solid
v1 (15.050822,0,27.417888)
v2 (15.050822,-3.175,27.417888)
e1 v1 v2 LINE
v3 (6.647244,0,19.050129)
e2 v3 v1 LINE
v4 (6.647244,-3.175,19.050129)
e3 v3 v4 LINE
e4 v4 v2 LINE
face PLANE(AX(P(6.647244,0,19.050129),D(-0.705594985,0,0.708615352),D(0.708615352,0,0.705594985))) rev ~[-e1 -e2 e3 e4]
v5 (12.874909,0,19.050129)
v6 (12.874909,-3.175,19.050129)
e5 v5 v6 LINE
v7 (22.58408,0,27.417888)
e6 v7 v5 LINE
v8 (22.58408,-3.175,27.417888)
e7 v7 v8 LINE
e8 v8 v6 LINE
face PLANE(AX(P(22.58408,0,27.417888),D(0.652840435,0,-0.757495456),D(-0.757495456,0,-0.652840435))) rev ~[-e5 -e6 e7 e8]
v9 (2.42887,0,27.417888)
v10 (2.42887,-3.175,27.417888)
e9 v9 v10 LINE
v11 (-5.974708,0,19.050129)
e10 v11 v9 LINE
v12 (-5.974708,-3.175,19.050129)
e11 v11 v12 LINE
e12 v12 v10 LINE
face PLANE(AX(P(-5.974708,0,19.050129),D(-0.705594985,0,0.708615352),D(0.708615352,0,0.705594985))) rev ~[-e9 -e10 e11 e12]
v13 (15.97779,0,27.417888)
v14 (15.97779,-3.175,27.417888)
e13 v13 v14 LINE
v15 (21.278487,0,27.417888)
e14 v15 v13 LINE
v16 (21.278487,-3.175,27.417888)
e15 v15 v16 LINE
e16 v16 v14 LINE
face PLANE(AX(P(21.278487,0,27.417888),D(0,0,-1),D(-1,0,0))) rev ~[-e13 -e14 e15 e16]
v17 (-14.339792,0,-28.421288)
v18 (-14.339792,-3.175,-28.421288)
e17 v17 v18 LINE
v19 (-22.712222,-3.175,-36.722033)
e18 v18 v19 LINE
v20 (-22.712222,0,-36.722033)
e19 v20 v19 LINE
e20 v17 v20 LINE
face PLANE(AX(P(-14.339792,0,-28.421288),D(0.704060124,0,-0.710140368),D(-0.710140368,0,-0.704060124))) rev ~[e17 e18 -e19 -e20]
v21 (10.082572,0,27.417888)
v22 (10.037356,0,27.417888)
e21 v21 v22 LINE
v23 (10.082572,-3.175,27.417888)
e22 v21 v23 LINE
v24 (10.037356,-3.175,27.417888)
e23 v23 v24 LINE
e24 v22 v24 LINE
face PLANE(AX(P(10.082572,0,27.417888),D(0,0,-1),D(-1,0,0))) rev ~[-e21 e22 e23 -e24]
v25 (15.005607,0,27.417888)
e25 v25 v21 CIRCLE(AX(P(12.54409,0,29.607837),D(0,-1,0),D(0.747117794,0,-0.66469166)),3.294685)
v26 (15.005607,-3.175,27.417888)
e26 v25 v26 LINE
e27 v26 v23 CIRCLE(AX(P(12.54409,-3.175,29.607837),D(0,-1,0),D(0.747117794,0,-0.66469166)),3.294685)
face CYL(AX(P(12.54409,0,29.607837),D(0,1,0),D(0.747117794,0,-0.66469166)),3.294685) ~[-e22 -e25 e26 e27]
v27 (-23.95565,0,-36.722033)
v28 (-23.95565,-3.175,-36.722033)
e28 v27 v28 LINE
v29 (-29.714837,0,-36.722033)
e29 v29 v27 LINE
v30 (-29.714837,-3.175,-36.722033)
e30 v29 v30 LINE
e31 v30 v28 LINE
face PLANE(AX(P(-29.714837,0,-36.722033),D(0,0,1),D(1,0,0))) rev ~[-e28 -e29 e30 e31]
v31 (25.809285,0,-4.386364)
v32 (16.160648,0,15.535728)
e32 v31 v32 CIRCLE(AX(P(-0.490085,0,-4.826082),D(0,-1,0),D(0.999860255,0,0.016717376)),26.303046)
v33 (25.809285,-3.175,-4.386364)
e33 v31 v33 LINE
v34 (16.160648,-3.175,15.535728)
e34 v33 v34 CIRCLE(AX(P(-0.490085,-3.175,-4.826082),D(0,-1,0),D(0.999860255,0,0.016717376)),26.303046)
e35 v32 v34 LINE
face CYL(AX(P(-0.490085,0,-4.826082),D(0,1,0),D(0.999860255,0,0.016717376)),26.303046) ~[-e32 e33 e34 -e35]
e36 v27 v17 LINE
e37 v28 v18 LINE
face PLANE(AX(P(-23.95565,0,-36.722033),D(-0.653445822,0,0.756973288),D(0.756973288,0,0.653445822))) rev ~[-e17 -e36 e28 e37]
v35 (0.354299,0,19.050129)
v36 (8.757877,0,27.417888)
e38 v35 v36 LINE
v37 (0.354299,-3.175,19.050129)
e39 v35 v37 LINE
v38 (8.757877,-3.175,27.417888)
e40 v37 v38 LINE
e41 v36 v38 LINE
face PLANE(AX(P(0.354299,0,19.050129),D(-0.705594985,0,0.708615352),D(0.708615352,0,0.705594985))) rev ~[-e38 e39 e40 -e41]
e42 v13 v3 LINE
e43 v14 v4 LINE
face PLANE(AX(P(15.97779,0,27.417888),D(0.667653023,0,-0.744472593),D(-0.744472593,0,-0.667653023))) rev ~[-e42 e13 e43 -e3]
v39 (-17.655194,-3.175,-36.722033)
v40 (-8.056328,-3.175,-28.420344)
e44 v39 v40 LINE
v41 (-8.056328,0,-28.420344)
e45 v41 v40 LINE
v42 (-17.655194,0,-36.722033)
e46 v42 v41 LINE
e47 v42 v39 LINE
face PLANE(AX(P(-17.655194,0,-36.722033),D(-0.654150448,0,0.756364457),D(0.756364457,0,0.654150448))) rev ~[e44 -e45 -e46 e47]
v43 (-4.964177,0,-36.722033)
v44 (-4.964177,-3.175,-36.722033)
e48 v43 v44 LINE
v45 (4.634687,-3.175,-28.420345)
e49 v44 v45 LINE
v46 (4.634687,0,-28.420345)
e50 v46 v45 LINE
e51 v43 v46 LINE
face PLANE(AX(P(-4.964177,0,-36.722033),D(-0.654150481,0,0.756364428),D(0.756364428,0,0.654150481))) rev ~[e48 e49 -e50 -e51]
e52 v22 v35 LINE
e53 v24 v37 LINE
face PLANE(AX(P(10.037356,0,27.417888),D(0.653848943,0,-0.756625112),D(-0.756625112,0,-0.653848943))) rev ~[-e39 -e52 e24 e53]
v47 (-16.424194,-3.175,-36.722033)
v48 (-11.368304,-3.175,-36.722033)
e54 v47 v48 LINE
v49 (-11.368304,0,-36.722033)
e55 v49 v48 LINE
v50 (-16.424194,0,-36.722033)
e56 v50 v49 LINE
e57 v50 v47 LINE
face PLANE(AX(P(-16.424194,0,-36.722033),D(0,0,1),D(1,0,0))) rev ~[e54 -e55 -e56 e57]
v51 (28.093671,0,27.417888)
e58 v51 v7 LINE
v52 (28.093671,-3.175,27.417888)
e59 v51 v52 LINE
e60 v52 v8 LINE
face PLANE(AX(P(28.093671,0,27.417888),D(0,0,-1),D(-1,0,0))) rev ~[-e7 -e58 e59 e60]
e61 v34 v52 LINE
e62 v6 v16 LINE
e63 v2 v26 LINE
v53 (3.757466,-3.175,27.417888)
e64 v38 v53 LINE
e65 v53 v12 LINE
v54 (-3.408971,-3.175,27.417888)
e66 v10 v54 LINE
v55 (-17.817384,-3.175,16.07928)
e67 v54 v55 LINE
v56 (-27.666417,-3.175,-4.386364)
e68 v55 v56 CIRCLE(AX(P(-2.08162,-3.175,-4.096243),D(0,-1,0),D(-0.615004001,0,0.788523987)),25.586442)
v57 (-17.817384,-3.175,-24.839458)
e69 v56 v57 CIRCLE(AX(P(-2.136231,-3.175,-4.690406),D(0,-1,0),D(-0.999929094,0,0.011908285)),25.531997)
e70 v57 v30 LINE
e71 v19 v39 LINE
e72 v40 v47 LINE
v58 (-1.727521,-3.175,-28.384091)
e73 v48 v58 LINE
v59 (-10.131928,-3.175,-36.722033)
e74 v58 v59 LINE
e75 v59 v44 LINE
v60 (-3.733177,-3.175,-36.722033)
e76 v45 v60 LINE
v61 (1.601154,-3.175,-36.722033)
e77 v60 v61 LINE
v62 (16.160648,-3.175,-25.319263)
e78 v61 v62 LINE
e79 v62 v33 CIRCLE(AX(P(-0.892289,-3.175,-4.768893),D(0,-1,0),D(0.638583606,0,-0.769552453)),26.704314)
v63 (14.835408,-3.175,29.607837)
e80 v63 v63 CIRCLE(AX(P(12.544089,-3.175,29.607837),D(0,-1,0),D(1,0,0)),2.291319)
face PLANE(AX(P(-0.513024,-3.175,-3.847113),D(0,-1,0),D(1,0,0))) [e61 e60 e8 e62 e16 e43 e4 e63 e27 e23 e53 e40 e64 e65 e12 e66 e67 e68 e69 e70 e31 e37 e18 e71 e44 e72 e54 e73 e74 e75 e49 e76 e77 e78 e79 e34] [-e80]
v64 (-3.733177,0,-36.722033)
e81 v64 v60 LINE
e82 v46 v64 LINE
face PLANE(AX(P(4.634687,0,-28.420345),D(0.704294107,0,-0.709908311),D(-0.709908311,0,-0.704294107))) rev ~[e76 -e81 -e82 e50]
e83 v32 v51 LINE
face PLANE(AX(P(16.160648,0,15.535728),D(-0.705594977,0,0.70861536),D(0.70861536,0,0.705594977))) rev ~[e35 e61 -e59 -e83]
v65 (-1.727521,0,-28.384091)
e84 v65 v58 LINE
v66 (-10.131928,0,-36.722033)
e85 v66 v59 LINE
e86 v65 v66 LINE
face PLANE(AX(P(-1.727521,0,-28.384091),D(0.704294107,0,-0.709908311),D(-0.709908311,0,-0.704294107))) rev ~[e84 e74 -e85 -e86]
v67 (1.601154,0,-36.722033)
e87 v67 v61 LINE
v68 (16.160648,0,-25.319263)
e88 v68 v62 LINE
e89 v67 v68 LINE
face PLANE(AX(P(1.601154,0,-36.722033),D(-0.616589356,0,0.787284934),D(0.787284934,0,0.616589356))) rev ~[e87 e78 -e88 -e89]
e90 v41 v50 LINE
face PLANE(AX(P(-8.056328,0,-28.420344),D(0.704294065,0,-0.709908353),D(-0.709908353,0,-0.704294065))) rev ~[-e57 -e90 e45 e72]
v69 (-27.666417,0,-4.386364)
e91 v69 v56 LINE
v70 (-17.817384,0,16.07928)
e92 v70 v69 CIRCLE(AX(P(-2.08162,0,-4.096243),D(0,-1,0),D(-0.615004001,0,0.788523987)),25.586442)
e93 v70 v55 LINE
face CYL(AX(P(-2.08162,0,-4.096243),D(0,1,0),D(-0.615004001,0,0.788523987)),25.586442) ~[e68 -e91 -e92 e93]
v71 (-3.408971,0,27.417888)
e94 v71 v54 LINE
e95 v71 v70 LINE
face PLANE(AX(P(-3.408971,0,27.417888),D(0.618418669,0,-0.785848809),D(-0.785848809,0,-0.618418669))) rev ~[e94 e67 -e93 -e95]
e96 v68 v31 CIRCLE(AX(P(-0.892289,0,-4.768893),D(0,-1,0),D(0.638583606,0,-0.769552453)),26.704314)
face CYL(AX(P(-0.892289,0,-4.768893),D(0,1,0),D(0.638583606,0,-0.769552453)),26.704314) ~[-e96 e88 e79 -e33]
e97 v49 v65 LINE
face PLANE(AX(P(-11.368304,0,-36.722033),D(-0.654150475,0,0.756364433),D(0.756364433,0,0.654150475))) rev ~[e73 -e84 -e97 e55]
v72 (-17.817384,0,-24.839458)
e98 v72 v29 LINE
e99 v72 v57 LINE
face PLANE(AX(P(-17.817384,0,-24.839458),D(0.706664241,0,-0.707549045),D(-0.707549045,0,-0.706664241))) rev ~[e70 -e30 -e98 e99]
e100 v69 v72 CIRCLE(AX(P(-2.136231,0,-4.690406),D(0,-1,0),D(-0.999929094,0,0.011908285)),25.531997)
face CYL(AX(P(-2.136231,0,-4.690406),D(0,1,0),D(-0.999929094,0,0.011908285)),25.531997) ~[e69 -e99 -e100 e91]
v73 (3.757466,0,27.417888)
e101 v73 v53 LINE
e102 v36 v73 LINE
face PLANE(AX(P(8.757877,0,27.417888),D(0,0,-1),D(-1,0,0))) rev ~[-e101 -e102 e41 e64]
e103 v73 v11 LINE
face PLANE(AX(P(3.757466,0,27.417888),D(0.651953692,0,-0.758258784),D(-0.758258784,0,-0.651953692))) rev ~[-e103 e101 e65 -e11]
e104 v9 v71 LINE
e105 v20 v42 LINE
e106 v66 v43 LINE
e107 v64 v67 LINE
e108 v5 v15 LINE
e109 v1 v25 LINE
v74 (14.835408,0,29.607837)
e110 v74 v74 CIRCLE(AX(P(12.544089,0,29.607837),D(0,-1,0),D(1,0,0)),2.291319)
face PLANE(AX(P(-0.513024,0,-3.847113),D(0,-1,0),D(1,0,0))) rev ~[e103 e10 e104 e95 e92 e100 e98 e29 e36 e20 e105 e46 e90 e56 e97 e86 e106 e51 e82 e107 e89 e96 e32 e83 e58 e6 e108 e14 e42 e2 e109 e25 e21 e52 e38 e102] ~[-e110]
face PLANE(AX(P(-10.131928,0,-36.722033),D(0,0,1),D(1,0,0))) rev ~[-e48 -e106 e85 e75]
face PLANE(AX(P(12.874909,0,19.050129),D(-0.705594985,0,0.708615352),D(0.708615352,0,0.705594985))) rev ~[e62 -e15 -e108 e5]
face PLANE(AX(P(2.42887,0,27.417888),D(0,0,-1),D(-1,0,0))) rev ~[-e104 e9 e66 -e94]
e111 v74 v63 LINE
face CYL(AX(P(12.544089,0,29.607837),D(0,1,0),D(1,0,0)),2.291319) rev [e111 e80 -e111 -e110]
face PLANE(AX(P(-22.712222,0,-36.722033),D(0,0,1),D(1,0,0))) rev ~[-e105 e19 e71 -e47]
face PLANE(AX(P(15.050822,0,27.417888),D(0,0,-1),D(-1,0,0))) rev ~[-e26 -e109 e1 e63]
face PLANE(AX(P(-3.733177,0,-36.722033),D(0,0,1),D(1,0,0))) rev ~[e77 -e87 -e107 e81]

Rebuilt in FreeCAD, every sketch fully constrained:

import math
import FreeCAD as App
import Part
import Sketcher
Q = App.Units.Quantity

doc = App.newDocument("Part")
body = doc.addObject("PartDesign::Body", "Body")

# Sketch on XZ plane
sketch1 = body.newObject("Sketcher::SketchObject", "Sketch")
sketch1.AttachmentSupport = (doc.getObject("XZ_Plane"), [""])
sketch1.MapMode = "FlatFace"
sketch1.addGeometry([
    Part.LineSegment(App.Vector(2.429, 27.418, 0), App.Vector(-3.409, 27.418, 0)),  # 0
    Part.LineSegment(App.Vector(-3.409, 27.418, 0), App.Vector(-17.817, 16.079, 0)),  # 1
    Part.ArcOfCircle(Part.Circle(App.Vector(-2.082, -4.096, 0), App.Vector(0, 0, 1), 25.586), math.radians(128), math.radians(181)),  # 2
    Part.ArcOfCircle(Part.Circle(App.Vector(-2.136, -4.69, 0), App.Vector(0, 0, 1), 25.532), math.radians(179), math.radians(232)),  # 3
    Part.LineSegment(App.Vector(-17.817, -24.839, 0), App.Vector(-29.715, -36.722, 0)),  # 4
    Part.LineSegment(App.Vector(-29.715, -36.722, 0), App.Vector(-23.956, -36.722, 0)),  # 5
    Part.LineSegment(App.Vector(-23.956, -36.722, 0), App.Vector(-14.34, -28.421, 0)),  # 6
    Part.LineSegment(App.Vector(-14.34, -28.421, 0), App.Vector(-22.712, -36.722, 0)),  # 7
    Part.LineSegment(App.Vector(-22.712, -36.722, 0), App.Vector(-17.655, -36.722, 0)),  # 8
    Part.LineSegment(App.Vector(-17.655, -36.722, 0), App.Vector(-8.056, -28.42, 0)),  # 9
    Part.LineSegment(App.Vector(-8.056, -28.42, 0), App.Vector(-16.424, -36.722, 0)),  # 10
    Part.LineSegment(App.Vector(-16.424, -36.722, 0), App.Vector(-11.368, -36.722, 0)),  # 11
    Part.LineSegment(App.Vector(-11.368, -36.722, 0), App.Vector(-1.728, -28.384, 0)),  # 12
    Part.LineSegment(App.Vector(-1.728, -28.384, 0), App.Vector(-10.132, -36.722, 0)),  # 13
    Part.LineSegment(App.Vector(-10.132, -36.722, 0), App.Vector(-4.964, -36.722, 0)),  # 14
    Part.LineSegment(App.Vector(-4.964, -36.722, 0), App.Vector(4.635, -28.42, 0)),  # 15
    Part.LineSegment(App.Vector(4.635, -28.42, 0), App.Vector(-3.733, -36.722, 0)),  # 16
    Part.LineSegment(App.Vector(-3.733, -36.722, 0), App.Vector(1.601, -36.722, 0)),  # 17
    Part.LineSegment(App.Vector(1.601, -36.722, 0), App.Vector(16.161, -25.319, 0)),  # 18
    Part.ArcOfCircle(Part.Circle(App.Vector(-0.892, -4.769, 0), App.Vector(0, 0, 1), 26.704), math.radians(-50), math.radians(1)),  # 19
    Part.ArcOfCircle(Part.Circle(App.Vector(-0.49, -4.826, 0), App.Vector(0, 0, 1), 26.303), math.radians(1), math.radians(51)),  # 20
    Part.LineSegment(App.Vector(16.161, 15.536, 0), App.Vector(28.094, 27.418, 0)),  # 21
    Part.LineSegment(App.Vector(28.094, 27.418, 0), App.Vector(22.584, 27.418, 0)),  # 22
    Part.LineSegment(App.Vector(22.584, 27.418, 0), App.Vector(12.875, 19.05, 0)),  # 23
    Part.LineSegment(App.Vector(12.875, 19.05, 0), App.Vector(21.278, 27.418, 0)),  # 24
    Part.LineSegment(App.Vector(21.278, 27.418, 0), App.Vector(15.978, 27.418, 0)),  # 25
    Part.LineSegment(App.Vector(15.978, 27.418, 0), App.Vector(6.647, 19.05, 0)),  # 26
    Part.LineSegment(App.Vector(6.647, 19.05, 0), App.Vector(15.051, 27.418, 0)),  # 27
    Part.LineSegment(App.Vector(15.051, 27.418, 0), App.Vector(15.006, 27.418, 0)),  # 28
    Part.ArcOfCircle(Part.Circle(App.Vector(12.544, 29.608, 0), App.Vector(0, 0, 1), 3.295), math.radians(-42), math.radians(222)),  # 29
    Part.LineSegment(App.Vector(10.083, 27.418, 0), App.Vector(10.037, 27.418, 0)),  # 30
    Part.LineSegment(App.Vector(10.037, 27.418, 0), App.Vector(0.354, 19.05, 0)),  # 31
    Part.LineSegment(App.Vector(0.354, 19.05, 0), App.Vector(8.758, 27.418, 0)),  # 32
    Part.LineSegment(App.Vector(8.758, 27.418, 0), App.Vector(3.757, 27.418, 0)),  # 33
    Part.LineSegment(App.Vector(3.757, 27.418, 0), App.Vector(-5.975, 19.05, 0)),  # 34
    Part.LineSegment(App.Vector(-5.975, 19.05, 0), App.Vector(2.429, 27.418, 0)),  # 35
    Part.Circle(App.Vector(12.544, 29.608, 0), App.Vector(0, 0, 1), 2.291),  # 36
], False)
sketch1.addConstraint([
    Sketcher.Constraint("Coincident", 0, 2, 1, 1),
    Sketcher.Constraint("Coincident", 1, 2, 2, 1),
    Sketcher.Constraint("Coincident", 2, 2, 3, 1),
    Sketcher.Constraint("Coincident", 3, 2, 4, 1),
    Sketcher.Constraint("Coincident", 4, 2, 5, 1),
    Sketcher.Constraint("Coincident", 5, 2, 6, 1),
    Sketcher.Constraint("Coincident", 6, 2, 7, 1),
    Sketcher.Constraint("Coincident", 7, 2, 8, 1),
    Sketcher.Constraint("Coincident", 8, 2, 9, 1),
    Sketcher.Constraint("Coincident", 9, 2, 10, 1),
    Sketcher.Constraint("Coincident", 10, 2, 11, 1),
    Sketcher.Constraint("Coincident", 11, 2, 12, 1),
    Sketcher.Constraint("Coincident", 12, 2, 13, 1),
    Sketcher.Constraint("Coincident", 13, 2, 14, 1),
    Sketcher.Constraint("Coincident", 14, 2, 15, 1),
    Sketcher.Constraint("Coincident", 15, 2, 16, 1),
    Sketcher.Constraint("Coincident", 16, 2, 17, 1),
    Sketcher.Constraint("Coincident", 17, 2, 18, 1),
    Sketcher.Constraint("Coincident", 18, 2, 19, 1),
    Sketcher.Constraint("Coincident", 19, 2, 20, 1),
    Sketcher.Constraint("Coincident", 20, 2, 21, 1),
    Sketcher.Constraint("Coincident", 21, 2, 22, 1),
    Sketcher.Constraint("Coincident", 22, 2, 23, 1),
    Sketcher.Constraint("Coincident", 23, 2, 24, 1),
    Sketcher.Constraint("Coincident", 24, 2, 25, 1),
    Sketcher.Constraint("Coincident", 25, 2, 26, 1),
    Sketcher.Constraint("Coincident", 26, 2, 27, 1),
    Sketcher.Constraint("Coincident", 27, 2, 28, 1),
    Sketcher.Constraint("Coincident", 28, 2, 29, 1),
    Sketcher.Constraint("Coincident", 29, 2, 30, 1),
    Sketcher.Constraint("Coincident", 30, 2, 31, 1),
    Sketcher.Constraint("Coincident", 31, 2, 32, 1),
    Sketcher.Constraint("Coincident", 32, 2, 33, 1),
    Sketcher.Constraint("Coincident", 33, 2, 34, 1),
    Sketcher.Constraint("Coincident", 34, 2, 35, 1),
    Sketcher.Constraint("Coincident", 35, 2, 0, 1),
    Sketcher.Constraint("Horizontal", 0),
    Sketcher.Constraint("Horizontal", 5),
    Sketcher.Constraint("Horizontal", 8),
    Sketcher.Constraint("Horizontal", 11),
    Sketcher.Constraint("Horizontal", 14),
    Sketcher.Constraint("Horizontal", 17),
    Sketcher.Constraint("Horizontal", 22),
    Sketcher.Constraint("Horizontal", 25),
    Sketcher.Constraint("Horizontal", 28),
    Sketcher.Constraint("Horizontal", 30),
    Sketcher.Constraint("Horizontal", 33),
    Sketcher.Constraint("Coincident", 36, 3, 29, 3),
    Sketcher.Constraint("Parallel", 9, 12),
    Sketcher.Constraint("Parallel", 10, 13),
    Sketcher.Constraint("Parallel", 12, 15),
    Sketcher.Constraint("Parallel", 13, 16),
    Sketcher.Constraint("Parallel", 21, 24),
    Sketcher.Constraint("Parallel", 24, 27),
    Sketcher.Constraint("Parallel", 27, 32),
    Sketcher.Constraint("Parallel", 32, 35),
    Sketcher.Constraint("Horizontal", 5, 2, 7, 2),
    Sketcher.Constraint("Horizontal", 8, 2, 10, 2),
    Sketcher.Constraint("Horizontal", 11, 2, 13, 2),
    Sketcher.Constraint("Horizontal", 9, 2, 15, 2),
    Sketcher.Constraint("Horizontal", 14, 2, 16, 2),
    Sketcher.Constraint("Horizontal", 2, 2, 19, 2),
    Sketcher.Constraint("Horizontal", 0, 2, 21, 2),
    Sketcher.Constraint("Horizontal", 22, 2, 24, 2),
    Sketcher.Constraint("Horizontal", 23, 2, 26, 2),
    Sketcher.Constraint("Horizontal", 25, 2, 27, 2),
    Sketcher.Constraint("Horizontal", 28, 2, 29, 2),
    Sketcher.Constraint("Horizontal", 26, 2, 31, 2),
    Sketcher.Constraint("Horizontal", 30, 2, 32, 2),
    Sketcher.Constraint("Horizontal", 31, 2, 34, 2),
    Sketcher.Constraint("Vertical", 1, 2, 3, 2),
    Sketcher.Constraint("Vertical", 18, 2, 20, 2),
    Sketcher.Constraint("Equal", 28, 30),
    Sketcher.Constraint("Diameter", 36, 4.582638),
    Sketcher.Constraint("Radius", 2, 25.586442),
    Sketcher.Constraint("Radius", 3, 25.531997),
    Sketcher.Constraint("Radius", 19, 26.704314),
    Sketcher.Constraint("Radius", 20, 26.303046),
    Sketcher.Constraint("Radius", 29, 3.294685),
    Sketcher.Constraint("DistanceX", 0, 2, 0, 1, 5.837841),
    Sketcher.Constraint("DistanceX", 11, 1, 11, 2, 5.05589),
    Sketcher.Constraint("DistanceX", 14, 1, 14, 2, 5.167751),
    Sketcher.Constraint("DistanceX", 17, 1, 17, 2, 5.334331),
    Sketcher.Constraint("DistanceX", 22, 2, 22, 1, 5.509591),
    Sketcher.Constraint("DistanceX", 33, 2, 33, 1, 5.000411),
    Sketcher.Constraint("DistanceX", -1, 1, 31, 2, 0.354299),
    Sketcher.Constraint("DistanceX", 1, 2, 20, 3, 17.327299),
    Sketcher.Constraint("DistanceX", 8, 2, 10, 2, 1.231),
    Sketcher.Constraint("DistanceX", 13, 2, 9, 2, 2.0756),
    Sketcher.Constraint("DistanceY", 18, 2, 19, 2, 20.932899),
    Sketcher.Constraint("DistanceY", 20, 2, 23, 2, 3.514401),
    Sketcher.Constraint("DistanceX", 29, 3, 25, 2, 3.433701),
    Sketcher.Constraint("DistanceX", 35, 2, 29, 2, 7.653702),
    Sketcher.Constraint("Distance", 1, 18.334841),
    Sketcher.Constraint("Distance", 10, 11.787248),
    Sketcher.Constraint("Distance", 13, 11.838722),
    Sketcher.Constraint("DistanceX", 5, 1, 5, 2, 5.759187),
    Sketcher.Constraint("DistanceX", 8, 1, 8, 2, 5.057028),
    Sketcher.Constraint("DistanceX", 25, 2, 25, 1, 5.300697),
    Sketcher.Constraint("DistanceX", 28, 2, 28, 1, 0.045215),
    Sketcher.Constraint("DistanceX", 2, 3, -1, 1, 2.08162),
    Sketcher.Constraint("DistanceX", 3, 3, -1, 1, 2.136231),
    Sketcher.Constraint("DistanceX", 19, 3, -1, 1, 0.892289),
    Sketcher.Constraint("DistanceY", 20, 3, -1, 1, 4.826082),
    Sketcher.Constraint("DistanceX", -1, 1, 29, 3, 12.54409),
    Sketcher.Constraint("DistanceX", 0, 2, -1, 1, 3.408971),
    Sketcher.Constraint("DistanceY", -1, 1, 0, 2, 27.417888),
    Sketcher.Constraint("DistanceY", -1, 1, 1, 2, 16.07928),
    Sketcher.Constraint("DistanceX", 5, 2, -1, 1, 23.95565),
    Sketcher.Constraint("DistanceX", 6, 2, -1, 1, 14.339792),
    Sketcher.Constraint("DistanceY", 6, 2, -1, 1, 28.421288),
    Sketcher.Constraint("DistanceX", 12, 2, -1, 1, 1.727521),
    Sketcher.Constraint("DistanceY", 12, 2, -1, 1, 28.384091),
    Sketcher.Constraint("DistanceX", -1, 1, 20, 2, 16.160648),
    Sketcher.Constraint("DistanceX", -1, 1, 21, 2, 28.093671),
])
pad1 = body.newObject("PartDesign::Pad", "Pad")
pad1.Profile = sketch1
pad1.Length = Q("0.125 in")

doc.recompute()
